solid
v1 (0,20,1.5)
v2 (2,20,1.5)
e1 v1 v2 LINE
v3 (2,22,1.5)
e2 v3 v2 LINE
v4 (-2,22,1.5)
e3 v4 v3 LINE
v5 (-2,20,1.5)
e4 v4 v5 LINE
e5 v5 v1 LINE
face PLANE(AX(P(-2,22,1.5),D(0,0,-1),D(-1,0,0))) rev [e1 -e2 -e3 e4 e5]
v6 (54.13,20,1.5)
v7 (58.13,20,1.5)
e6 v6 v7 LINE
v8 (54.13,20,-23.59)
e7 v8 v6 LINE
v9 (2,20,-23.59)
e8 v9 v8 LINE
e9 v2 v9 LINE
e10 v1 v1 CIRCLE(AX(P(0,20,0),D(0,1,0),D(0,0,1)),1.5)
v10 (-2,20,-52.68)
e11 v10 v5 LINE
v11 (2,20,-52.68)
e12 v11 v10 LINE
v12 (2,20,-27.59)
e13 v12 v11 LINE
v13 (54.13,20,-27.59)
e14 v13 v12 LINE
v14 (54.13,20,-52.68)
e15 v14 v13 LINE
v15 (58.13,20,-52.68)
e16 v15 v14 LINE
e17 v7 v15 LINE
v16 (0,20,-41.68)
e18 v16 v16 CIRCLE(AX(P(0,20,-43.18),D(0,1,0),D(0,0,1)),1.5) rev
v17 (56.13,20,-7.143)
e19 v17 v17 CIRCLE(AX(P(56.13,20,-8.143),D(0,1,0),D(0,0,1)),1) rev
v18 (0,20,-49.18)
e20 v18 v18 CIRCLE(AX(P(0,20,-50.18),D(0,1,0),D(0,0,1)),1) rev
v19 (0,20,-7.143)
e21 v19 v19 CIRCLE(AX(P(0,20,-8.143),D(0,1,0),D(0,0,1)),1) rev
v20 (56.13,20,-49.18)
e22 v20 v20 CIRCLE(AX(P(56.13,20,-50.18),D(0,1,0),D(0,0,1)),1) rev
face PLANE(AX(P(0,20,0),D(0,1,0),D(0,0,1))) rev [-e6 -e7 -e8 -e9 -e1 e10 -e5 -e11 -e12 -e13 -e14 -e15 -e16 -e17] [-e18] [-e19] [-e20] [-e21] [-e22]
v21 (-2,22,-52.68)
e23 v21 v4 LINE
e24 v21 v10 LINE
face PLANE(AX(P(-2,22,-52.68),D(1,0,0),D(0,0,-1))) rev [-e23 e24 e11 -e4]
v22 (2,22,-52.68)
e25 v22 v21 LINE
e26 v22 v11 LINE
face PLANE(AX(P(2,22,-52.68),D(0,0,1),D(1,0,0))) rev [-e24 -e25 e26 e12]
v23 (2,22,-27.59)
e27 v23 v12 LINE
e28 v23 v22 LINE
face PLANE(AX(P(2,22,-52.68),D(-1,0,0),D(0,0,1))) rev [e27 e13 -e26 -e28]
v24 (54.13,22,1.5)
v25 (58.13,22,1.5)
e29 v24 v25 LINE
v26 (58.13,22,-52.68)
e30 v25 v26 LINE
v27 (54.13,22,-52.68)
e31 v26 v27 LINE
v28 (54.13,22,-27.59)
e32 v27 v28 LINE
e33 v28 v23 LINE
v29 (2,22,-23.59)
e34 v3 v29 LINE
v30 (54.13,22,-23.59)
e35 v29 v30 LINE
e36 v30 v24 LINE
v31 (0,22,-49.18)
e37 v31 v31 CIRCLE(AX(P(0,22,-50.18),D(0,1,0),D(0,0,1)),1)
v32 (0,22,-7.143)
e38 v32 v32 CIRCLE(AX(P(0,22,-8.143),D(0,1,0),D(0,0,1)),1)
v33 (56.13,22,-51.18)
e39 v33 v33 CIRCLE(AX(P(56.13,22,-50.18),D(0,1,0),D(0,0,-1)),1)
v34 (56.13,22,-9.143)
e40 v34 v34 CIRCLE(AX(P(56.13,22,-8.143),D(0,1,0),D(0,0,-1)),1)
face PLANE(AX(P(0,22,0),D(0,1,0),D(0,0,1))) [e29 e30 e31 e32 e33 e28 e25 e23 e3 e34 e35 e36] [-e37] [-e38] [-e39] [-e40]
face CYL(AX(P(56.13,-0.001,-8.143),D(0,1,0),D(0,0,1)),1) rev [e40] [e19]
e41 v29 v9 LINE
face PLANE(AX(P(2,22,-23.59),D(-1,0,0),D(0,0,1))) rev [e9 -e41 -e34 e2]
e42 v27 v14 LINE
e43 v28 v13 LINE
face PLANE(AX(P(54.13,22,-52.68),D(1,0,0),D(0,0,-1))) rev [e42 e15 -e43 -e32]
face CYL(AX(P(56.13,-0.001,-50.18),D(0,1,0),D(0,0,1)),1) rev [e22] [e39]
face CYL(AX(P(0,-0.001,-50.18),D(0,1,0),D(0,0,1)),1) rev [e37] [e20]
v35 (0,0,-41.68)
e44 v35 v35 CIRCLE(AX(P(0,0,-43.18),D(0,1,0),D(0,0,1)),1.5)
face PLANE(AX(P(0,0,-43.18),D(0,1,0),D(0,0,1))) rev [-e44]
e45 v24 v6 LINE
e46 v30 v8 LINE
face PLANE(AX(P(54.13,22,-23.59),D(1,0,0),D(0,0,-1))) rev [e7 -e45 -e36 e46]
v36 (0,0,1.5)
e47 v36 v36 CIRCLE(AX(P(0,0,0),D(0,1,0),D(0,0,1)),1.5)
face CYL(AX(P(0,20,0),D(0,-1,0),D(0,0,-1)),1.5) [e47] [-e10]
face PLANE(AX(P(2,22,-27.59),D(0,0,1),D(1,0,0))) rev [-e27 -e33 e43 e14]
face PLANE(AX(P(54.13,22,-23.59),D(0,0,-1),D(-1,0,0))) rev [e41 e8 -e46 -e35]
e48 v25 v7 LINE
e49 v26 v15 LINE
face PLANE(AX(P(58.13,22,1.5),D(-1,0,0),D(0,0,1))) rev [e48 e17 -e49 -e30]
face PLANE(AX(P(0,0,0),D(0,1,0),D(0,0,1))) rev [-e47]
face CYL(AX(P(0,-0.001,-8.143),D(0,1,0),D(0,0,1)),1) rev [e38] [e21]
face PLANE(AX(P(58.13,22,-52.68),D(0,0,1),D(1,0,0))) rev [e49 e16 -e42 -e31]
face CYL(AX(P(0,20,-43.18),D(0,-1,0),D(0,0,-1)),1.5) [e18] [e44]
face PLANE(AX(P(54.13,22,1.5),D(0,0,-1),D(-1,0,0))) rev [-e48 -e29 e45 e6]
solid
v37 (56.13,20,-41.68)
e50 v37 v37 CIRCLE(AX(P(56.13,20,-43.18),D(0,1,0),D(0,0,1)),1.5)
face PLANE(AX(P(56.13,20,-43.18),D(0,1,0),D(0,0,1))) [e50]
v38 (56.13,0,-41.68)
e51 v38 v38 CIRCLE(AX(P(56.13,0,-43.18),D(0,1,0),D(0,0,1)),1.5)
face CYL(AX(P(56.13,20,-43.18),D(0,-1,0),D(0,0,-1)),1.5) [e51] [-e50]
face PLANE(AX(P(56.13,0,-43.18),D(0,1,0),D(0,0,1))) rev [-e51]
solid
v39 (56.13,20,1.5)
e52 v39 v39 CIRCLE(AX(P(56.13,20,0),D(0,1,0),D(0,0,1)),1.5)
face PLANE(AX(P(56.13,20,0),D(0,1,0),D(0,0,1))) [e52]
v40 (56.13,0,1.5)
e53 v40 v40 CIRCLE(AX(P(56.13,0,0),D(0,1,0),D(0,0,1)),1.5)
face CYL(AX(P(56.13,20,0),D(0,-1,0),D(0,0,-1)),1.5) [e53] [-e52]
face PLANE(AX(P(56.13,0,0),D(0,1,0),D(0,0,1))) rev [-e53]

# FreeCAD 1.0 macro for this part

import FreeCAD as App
import Part
import Sketcher

V = App.Vector
Q = App.Units.Quantity


def add_polygon(sketch, points):
    """Adds a closed chain of lines whose ends are joined by coincident constraints."""
    first, n = sketch.GeometryCount, len(points)
    for a, b in zip(points, points[1:] + points[:1]):
        sketch.addGeometry(Part.LineSegment(App.Vector(*a, 0), App.Vector(*b, 0)), False)
    for i in range(n):
        sketch.addConstraint(Sketcher.Constraint("Coincident", first + i, 2, first + (i + 1) % n, 1))

doc = App.newDocument("Part")
body = doc.addObject("PartDesign::Body", "Body")

# Sketch on XZ plane
sketch1 = body.newObject("Sketcher::SketchObject", "Sketch")
sketch1.AttachmentSupport = (doc.getObject("XZ_Plane"), [""])
sketch1.MapMode = "FlatFace"
sketch1.addGeometry(Part.Circle(V(0, 0, 0), V(0, 0, 1), 1.5), False)
sketch1.addConstraint([
    Sketcher.Constraint("Coincident", 0, 3, -1, 1),
    Sketcher.Constraint("Diameter", 0, Q("3 mm")),
])
pad1 = body.newObject("PartDesign::Pad", "Pad")
pad1.Profile = sketch1
pad1.Length = 20
pad1.Reversed = True
body2 = doc.addObject("PartDesign::Body", "Body001")

# Sketch on XZ plane
sketch2 = body2.newObject("Sketcher::SketchObject", "Sketch001")
sketch2.AttachmentSupport = (doc.getObject("XZ_Plane001"), [""])
sketch2.MapMode = "FlatFace"
sketch2.addGeometry(Part.Circle(V(0, -43.18, 0), V(0, 0, 1), 1.5), False)
sketch2.addConstraint([
    Sketcher.Constraint("PointOnObject", 0, 3, -2),
    Sketcher.Constraint("Diameter", 0, Q("3 mm")),
    Sketcher.Constraint("DistanceY", 0, 3, -1, 1, Q("43.18 mm")),
])
pad2 = body2.newObject("PartDesign::Pad", "Pad001")
pad2.Profile = sketch2
pad2.Length = 20
pad2.Reversed = True
body3 = doc.addObject("PartDesign::Body", "Body002")

# Sketch on XZ plane
sketch3 = body3.newObject("Sketcher::SketchObject", "Sketch002")
sketch3.AttachmentSupport = (doc.getObject("XZ_Plane002"), [""])
sketch3.MapMode = "FlatFace"
sketch3.addGeometry(Part.Circle(V(56.13, -43.18, 0), V(0, 0, 1), 1.5), False)
sketch3.addConstraint([
    Sketcher.Constraint("Diameter", 0, Q("3 mm")),
    Sketcher.Constraint("DistanceX", -1, 1, 0, 3, Q("56.13 mm")),
    Sketcher.Constraint("DistanceY", 0, 3, -1, 1, Q("43.18 mm")),
])
pad3 = body3.newObject("PartDesign::Pad", "Pad002")
pad3.Profile = sketch3
pad3.Length = 20
pad3.Reversed = True
body4 = doc.addObject("PartDesign::Body", "Body003")

# Sketch on XZ plane
sketch4 = body4.newObject("Sketcher::SketchObject", "Sketch003")
sketch4.AttachmentSupport = (doc.getObject("XZ_Plane003"), [""])
sketch4.MapMode = "FlatFace"
sketch4.addGeometry(Part.Circle(V(56.13, 0, 0), V(0, 0, 1), 1.5), False)
sketch4.addConstraint([
    Sketcher.Constraint("PointOnObject", 0, 3, -1),
    Sketcher.Constraint("Diameter", 0, Q("3 mm")),
    Sketcher.Constraint("DistanceX", -1, 1, 0, 3, Q("56.13 mm")),
])
pad4 = body4.newObject("PartDesign::Pad", "Pad003")
pad4.Profile = sketch4
pad4.Length = 20
pad4.Reversed = True
body.AllowCompound = True
doc.recompute()

boolean = body.newObject("PartDesign::Boolean", "Boolean")
boolean.Type = "Fuse"
boolean.addObjects([body2])

# Sketch on XZ plane
sketch5 = body.newObject("Sketcher::SketchObject", "Sketch004")
sketch5.AttachmentSupport = (doc.getObject("XZ_Plane"), [""])
sketch5.MapMode = "FlatFace"
sketch5.AttachmentOffset = App.Placement(V(0, 0, -20), App.Rotation())
add_polygon(sketch5, [(-2, -52.68), (-2, 1.5), (2, 1.5), (2, -23.59), (54.13, -23.59), (54.13, 1.5), (58.13, 1.5), (58.13, -52.68), (54.13, -52.68), (54.13, -27.59), (2, -27.59), (2, -52.68)])  # lines 0-11
sketch5.addConstraint([
    Sketcher.Constraint("Vertical", 0),
    Sketcher.Constraint("Horizontal", 1),
    Sketcher.Constraint("Vertical", 2),
    Sketcher.Constraint("Horizontal", 3),
    Sketcher.Constraint("Vertical", 4),
    Sketcher.Constraint("Horizontal", 5),
    Sketcher.Constraint("Vertical", 6),
    Sketcher.Constraint("Horizontal", 7),
    Sketcher.Constraint("Vertical", 8),
    Sketcher.Constraint("Horizontal", 9),
    Sketcher.Constraint("Vertical", 10),
    Sketcher.Constraint("Horizontal", 11),
    Sketcher.Constraint("Horizontal", 1, 2, 4, 2),
    Sketcher.Constraint("Horizontal", 7, 2, 10, 2),
    Sketcher.Constraint("Vertical", 4, 2, 7, 2),
    Sketcher.Constraint("Vertical", 2, 2, 9, 2),
    Sketcher.Constraint("Equal", 1, 5),
    Sketcher.Constraint("Equal", 4, 8),
    Sketcher.Constraint("DistanceX", 1, 1, 1, 2, Q("4 mm")),
    Sketcher.Constraint("DistanceX", 0, 2, -1, 1, Q("2 mm")),
    Sketcher.Constraint("DistanceY", 8, 2, 3, 2, Q("4 mm")),
    Sketcher.Constraint("DistanceX", 3, 1, 3, 2, Q("52.13 mm")),
    Sketcher.Constraint("DistanceY", 0, 1, 0, 2, Q("54.18 mm")),
    Sketcher.Constraint("DistanceY", -1, 1, 0, 2, Q("1.5 mm")),
])
pad5 = body.newObject("PartDesign::Pad", "Pad004")
pad5.Profile = sketch5
pad5.Length = 2
pad5.Reversed = True

# Sketch on XZ plane
sketch6 = body.newObject("Sketcher::SketchObject", "Sketch005")
sketch6.AttachmentSupport = (doc.getObject("XZ_Plane"), [""])
sketch6.MapMode = "FlatFace"
sketch6.AttachmentOffset = App.Placement(V(0, 0, -22), App.Rotation())
sketch6.addGeometry([
    Part.Circle(V(0, -50.18, 0), V(0, 0, 1), 1),
    Part.Circle(V(0, -8.143, 0), V(0, 0, 1), 1),
    Part.Circle(V(56.13, -8.143, 0), V(0, 0, 1), 1),
    Part.Circle(V(56.13, -50.18, 0), V(0, 0, 1), 1),
], False)
sketch6.addConstraint([
    Sketcher.Constraint("Equal", 0, 1),
    Sketcher.Constraint("Equal", 1, 2),
    Sketcher.Constraint("Equal", 2, 3),
    Sketcher.Constraint("PointOnObject", 0, 3, -2),
    Sketcher.Constraint("PointOnObject", 1, 3, -2),
    Sketcher.Constraint("Horizontal", 1, 3, 2, 3),
    Sketcher.Constraint("Horizontal", 0, 3, 3, 3),
    Sketcher.Constraint("Vertical", 2, 3, 3, 3),
    Sketcher.Constraint("Diameter", 0, Q("2 mm")),
    Sketcher.Constraint("DistanceY", 0, 3, -1, 1, Q("50.18 mm")),
    Sketcher.Constraint("DistanceX", -1, 1, 2, 3, Q("56.13 mm")),
    Sketcher.Constraint("DistanceY", 1, 3, -1, 1, Q("8.143 mm")),
])
pocket1 = body.newObject("PartDesign::Pocket", "Pocket")
pocket1.Profile = sketch6
pocket1.Length = 2
pocket1.Reversed = True

doc.recompute()
